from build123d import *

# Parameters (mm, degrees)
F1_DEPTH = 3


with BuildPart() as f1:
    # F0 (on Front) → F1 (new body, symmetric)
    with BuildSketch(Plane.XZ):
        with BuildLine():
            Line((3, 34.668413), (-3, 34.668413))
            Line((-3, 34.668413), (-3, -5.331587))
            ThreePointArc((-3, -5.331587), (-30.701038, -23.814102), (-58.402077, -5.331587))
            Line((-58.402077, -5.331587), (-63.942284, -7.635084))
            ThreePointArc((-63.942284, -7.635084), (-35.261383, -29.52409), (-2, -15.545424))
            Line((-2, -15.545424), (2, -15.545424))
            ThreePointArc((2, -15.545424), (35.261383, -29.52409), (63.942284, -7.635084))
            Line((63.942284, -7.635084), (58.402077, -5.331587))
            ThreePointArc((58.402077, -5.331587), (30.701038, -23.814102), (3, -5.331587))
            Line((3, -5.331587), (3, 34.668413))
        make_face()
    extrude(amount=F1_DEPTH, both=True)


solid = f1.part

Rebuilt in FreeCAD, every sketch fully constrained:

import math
import FreeCAD as App
import Part
import Sketcher

V = App.Vector

doc = App.newDocument("Part")
body = doc.addObject("PartDesign::Body", "Body")

sketch1 = body.newObject("Sketcher::SketchObject", "Sketch")
sketch1.AttachmentSupport = (doc.getObject("XZ_Plane"), [""])
sketch1.MapMode = "FlatFace"
sketch1.addGeometry(Part.LineSegment(V(3, 34.668413, 0), V(-3, 34.668413, 0)), False)
sketch1.addGeometry(Part.LineSegment(V(-3, 34.668413, 0), V(-3, -5.331587, 0)), False)
sketch1.addGeometry(Part.ArcOfCircle(Part.Circle(V(-30.701038, 6.185898, 0), V(0, 0, 1), 30), math.radians(-157.423529), math.radians(-22.576471)), False)
sketch1.addGeometry(Part.LineSegment(V(-58.402077, -5.331587, 0), V(-63.942284, -7.635084, 0)), False)
sketch1.addGeometry(Part.ArcOfCircle(Part.Circle(V(-30.701038, 6.185897, 0), V(0, 0, 1), 35.999999), math.radians(-157.42353), math.radians(-37.131603)), False)
sketch1.addGeometry(Part.LineSegment(V(-2, -15.545424, 0), V(2, -15.545424, 0)), False)
sketch1.addGeometry(Part.ArcOfCircle(Part.Circle(V(30.701038, 6.185897, 0), V(0, 0, 1), 35.999999), math.radians(-142.868397), math.radians(-22.57647)), False)
sketch1.addGeometry(Part.LineSegment(V(63.942284, -7.635084, 0), V(58.402077, -5.331587, 0)), False)
sketch1.addGeometry(Part.ArcOfCircle(Part.Circle(V(30.701038, 6.185898, 0), V(0, 0, 1), 30), math.radians(-157.423529), math.radians(-22.576471)), False)
sketch1.addGeometry(Part.LineSegment(V(3, -5.331587, 0), V(3, 34.668413, 0)), False)
sketch1.addConstraint(Sketcher.Constraint("Coincident", 0, 2, 1, 1))
sketch1.addConstraint(Sketcher.Constraint("Coincident", 1, 2, 2, 2))
sketch1.addConstraint(Sketcher.Constraint("Coincident", 2, 1, 3, 1))
sketch1.addConstraint(Sketcher.Constraint("Coincident", 3, 2, 4, 1))
sketch1.addConstraint(Sketcher.Constraint("Coincident", 4, 2, 5, 1))
sketch1.addConstraint(Sketcher.Constraint("Coincident", 5, 2, 6, 1))
sketch1.addConstraint(Sketcher.Constraint("Coincident", 6, 2, 7, 1))
sketch1.addConstraint(Sketcher.Constraint("Coincident", 7, 2, 8, 2))
sketch1.addConstraint(Sketcher.Constraint("Coincident", 8, 1, 9, 1))
sketch1.addConstraint(Sketcher.Constraint("Coincident", 9, 2, 0, 1))
sketch1.addConstraint(Sketcher.Constraint("Horizontal", 0))
sketch1.addConstraint(Sketcher.Constraint("Vertical", 1))
sketch1.addConstraint(Sketcher.Constraint("Horizontal", 5))
sketch1.addConstraint(Sketcher.Constraint("Vertical", 9))
sketch1.addConstraint(Sketcher.Constraint("Coincident", 4, 3, 2, 3))
sketch1.addConstraint(Sketcher.Constraint("Coincident", 8, 3, 6, 3))
sketch1.addConstraint(Sketcher.Constraint("Equal", 4, 6))
sketch1.addConstraint(Sketcher.Constraint("Equal", 2, 8))
sketch1.addConstraint(Sketcher.Constraint("Symmetric", 2, 3, 6, 3, -2))
sketch1.addConstraint(Sketcher.Constraint("Horizontal", 1, 2, 2, 1))
sketch1.addConstraint(Sketcher.Constraint("Horizontal", 3, 2, 6, 2))
sketch1.addConstraint(Sketcher.Constraint("Horizontal", 2, 1, 7, 2))
sketch1.addConstraint(Sketcher.Constraint("Horizontal", 7, 2, 8, 1))
sketch1.addConstraint(Sketcher.Constraint("Radius", 2, 30.0))
sketch1.addConstraint(Sketcher.Constraint("Radius", 4, 35.999999))
sketch1.addConstraint(Sketcher.Constraint("DistanceX", 0, 2, 0, 1, 6.0))
sketch1.addConstraint(Sketcher.Constraint("DistanceX", 5, 1, 5, 2, 4.0))
sketch1.addConstraint(Sketcher.Constraint("DistanceY", 1, 2, 1, 1, 40.0))
sketch1.addConstraint(Sketcher.Constraint("DistanceX", 2, 3, -1, 1, 30.701038))
sketch1.addConstraint(Sketcher.Constraint("DistanceY", 3, 2, 4, 3, 13.820981))
sketch1.addConstraint(Sketcher.Constraint("DistanceY", -1, 1, 2, 3, 6.185898))
pad1 = body.newObject("PartDesign::Pad", "Pad")
pad1.Profile = sketch1
pad1.Length = 6
pad1.Midplane = True

doc.recompute()
